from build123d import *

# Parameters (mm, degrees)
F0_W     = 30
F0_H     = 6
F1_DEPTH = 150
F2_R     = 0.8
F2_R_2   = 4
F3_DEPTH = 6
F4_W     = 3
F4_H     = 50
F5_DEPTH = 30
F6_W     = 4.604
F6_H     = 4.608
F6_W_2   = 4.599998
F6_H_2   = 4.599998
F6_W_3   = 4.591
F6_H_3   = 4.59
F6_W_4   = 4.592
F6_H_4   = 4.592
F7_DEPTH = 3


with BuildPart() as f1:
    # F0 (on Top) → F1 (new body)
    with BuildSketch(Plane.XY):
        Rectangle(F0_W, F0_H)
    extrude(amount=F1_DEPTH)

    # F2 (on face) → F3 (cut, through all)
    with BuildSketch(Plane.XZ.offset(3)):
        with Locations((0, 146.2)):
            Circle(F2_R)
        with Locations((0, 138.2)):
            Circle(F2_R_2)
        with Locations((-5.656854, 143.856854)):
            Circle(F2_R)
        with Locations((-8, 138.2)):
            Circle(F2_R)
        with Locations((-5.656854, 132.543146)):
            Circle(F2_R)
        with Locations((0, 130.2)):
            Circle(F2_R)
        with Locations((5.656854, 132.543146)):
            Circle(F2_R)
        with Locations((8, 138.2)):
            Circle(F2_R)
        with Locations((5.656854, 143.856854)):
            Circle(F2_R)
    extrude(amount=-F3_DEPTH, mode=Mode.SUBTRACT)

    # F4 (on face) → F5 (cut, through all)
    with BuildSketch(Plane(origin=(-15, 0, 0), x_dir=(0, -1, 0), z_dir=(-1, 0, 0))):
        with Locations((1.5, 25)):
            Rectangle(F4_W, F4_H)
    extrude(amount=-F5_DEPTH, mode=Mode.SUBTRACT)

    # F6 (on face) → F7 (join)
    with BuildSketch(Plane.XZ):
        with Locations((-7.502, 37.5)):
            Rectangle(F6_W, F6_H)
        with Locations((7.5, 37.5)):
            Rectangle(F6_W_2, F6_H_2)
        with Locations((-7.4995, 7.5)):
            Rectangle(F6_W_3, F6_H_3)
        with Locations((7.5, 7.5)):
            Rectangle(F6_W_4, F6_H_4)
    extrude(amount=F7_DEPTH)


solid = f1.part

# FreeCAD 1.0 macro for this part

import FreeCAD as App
import Part
import Sketcher

V = App.Vector
Q = App.Units.Quantity


def add_polygon(sketch, points):
    """Adds a closed chain of lines whose ends are joined by coincident constraints."""
    first, n = sketch.GeometryCount, len(points)
    for a, b in zip(points, points[1:] + points[:1]):
        sketch.addGeometry(Part.LineSegment(App.Vector(*a, 0), App.Vector(*b, 0)), False)
    for i in range(n):
        sketch.addConstraint(Sketcher.Constraint("Coincident", first + i, 2, first + (i + 1) % n, 1))

doc = App.newDocument("Part")
body = doc.addObject("PartDesign::Body", "Body")

# Sketch on XY plane
sketch1 = doc.addObject("Sketcher::SketchObject", "Sketch")
body.addObject(sketch1)
sketch1.AttachmentSupport = (doc.XY_Plane, [""])
sketch1.MapMode = "FlatFace"
add_polygon(sketch1, [(-15, 3), (-15, -3), (15, -3), (15, 3)])  # lines 0-3
sketch1.addConstraint([
    Sketcher.Constraint("Vertical", 0),
    Sketcher.Constraint("Horizontal", 1),
    Sketcher.Constraint("Vertical", 2),
    Sketcher.Constraint("Horizontal", 3),
    Sketcher.Constraint("Symmetric", 0, 2, 2, 2, -1, 1),
    Sketcher.Constraint("DistanceX", 1, 1, 1, 2, Q("30 mm")),
    Sketcher.Constraint("DistanceY", 0, 2, 0, 1, Q("6 mm")),
])
pad1 = doc.addObject("PartDesign::Pad", "Pad")
body.addObject(pad1)
pad1.Profile = sketch1
pad1.Length = 150

# Sketch on XZ plane
sketch2 = doc.addObject("Sketcher::SketchObject", "Sketch001")
body.addObject(sketch2)
sketch2.AttachmentSupport = (doc.XZ_Plane, [""])
sketch2.MapMode = "FlatFace"
sketch2.AttachmentOffset = App.Placement(V(0, 0, 3), App.Rotation())
sketch2.addGeometry([
    Part.Circle(V(0, 146.2, 0), V(0, 0, 1), 0.8),  # 0
    Part.Circle(V(0, 138.2, 0), V(0, 0, 1), 4),  # 1
    Part.Circle(V(-5.656854, 143.856854, 0), V(0, 0, 1), 0.8),  # 2
    Part.Circle(V(-8, 138.2, 0), V(0, 0, 1), 0.8),  # 3
    Part.Circle(V(-5.656854, 132.543146, 0), V(0, 0, 1), 0.8),  # 4
    Part.Circle(V(0, 130.2, 0), V(0, 0, 1), 0.8),  # 5
    Part.Circle(V(5.656854, 132.543146, 0), V(0, 0, 1), 0.8),  # 6
    Part.Circle(V(8, 138.2, 0), V(0, 0, 1), 0.8),  # 7
    Part.Circle(V(5.656854, 143.856854, 0), V(0, 0, 1), 0.8),  # 8
], False)
sketch2.addConstraint([
    Sketcher.Constraint("Equal", 0, 2),
    Sketcher.Constraint("Equal", 2, 3),
    Sketcher.Constraint("Equal", 3, 4),
    Sketcher.Constraint("Equal", 4, 5),
    Sketcher.Constraint("Equal", 5, 6),
    Sketcher.Constraint("Equal", 6, 7),
    Sketcher.Constraint("Equal", 7, 8),
    Sketcher.Constraint("Symmetric", 4, 3, 6, 3, -2),
    Sketcher.Constraint("Symmetric", 3, 3, 7, 3, -2),
    Sketcher.Constraint("Symmetric", 2, 3, 8, 3, -2),
    Sketcher.Constraint("PointOnObject", 0, 3, -2),
    Sketcher.Constraint("PointOnObject", 1, 3, -2),
    Sketcher.Constraint("PointOnObject", 5, 3, -2),
    Sketcher.Constraint("Horizontal", 1, 3, 3, 3),
    Sketcher.Constraint("Vertical", 2, 3, 4, 3),
    Sketcher.Constraint("Diameter", 1, Q("8 mm")),
    Sketcher.Constraint("Diameter", 0, Q("1.6 mm")),
    Sketcher.Constraint("DistanceX", 3, 3, -1, 1, Q("8 mm")),
    Sketcher.Constraint("DistanceY", 1, 3, 0, 3, Q("8 mm")),
    Sketcher.Constraint("DistanceY", 5, 3, 1, 3, Q("8 mm")),
    Sketcher.Constraint("DistanceY", -1, 1, 0, 3, Q("146.2 mm")),
    Sketcher.Constraint("DistanceX", 2, 3, -1, 1, Q("5.656854 mm")),
    Sketcher.Constraint("DistanceY", -1, 1, 2, 3, Q("143.856854 mm")),
    Sketcher.Constraint("DistanceY", -1, 1, 4, 3, Q("132.543146 mm")),
])
pocket1 = doc.addObject("PartDesign::Pocket", "Pocket")
body.addObject(pocket1)
pocket1.Profile = sketch2
pocket1.Type = "ThroughAll"

# Sketch on YZ plane
sketch3 = doc.addObject("Sketcher::SketchObject", "Sketch002")
body.addObject(sketch3)
sketch3.AttachmentSupport = (doc.YZ_Plane, [""])
sketch3.MapMode = "FlatFace"
sketch3.AttachmentOffset = App.Placement(V(0, 0, -15), App.Rotation())
add_polygon(sketch3, [(0, 50), (0, 0), (-3, 0), (-3, 50)])  # lines 0-3
sketch3.addConstraint([
    Sketcher.Constraint("Vertical", 0),
    Sketcher.Constraint("Horizontal", 1),
    Sketcher.Constraint("Vertical", 2),
    Sketcher.Constraint("Horizontal", 3),
    Sketcher.Constraint("Coincident", 0, 2, -1, 1),
    Sketcher.Constraint("DistanceX", 1, 2, 1, 1, Q("3 mm")),
    Sketcher.Constraint("DistanceY", 0, 2, 0, 1, Q("50 mm")),
])
pocket2 = doc.addObject("PartDesign::Pocket", "Pocket001")
body.addObject(pocket2)
pocket2.Profile = sketch3
pocket2.Type = "ThroughAll"
pocket2.Reversed = True

# Sketch on XZ plane
sketch4 = doc.addObject("Sketcher::SketchObject", "Sketch003")
body.addObject(sketch4)
sketch4.AttachmentSupport = (doc.XZ_Plane, [""])
sketch4.MapMode = "FlatFace"
add_polygon(sketch4, [(-9.804, 39.804), (-9.804, 35.196), (-5.2, 35.196), (-5.2, 39.804)])  # lines 0-3
add_polygon(sketch4, [(5.200001, 39.799999), (5.200001, 35.200001), (9.799999, 35.200001), (9.799999, 39.799999)])  # lines 4-7
add_polygon(sketch4, [(-9.795, 9.795), (-9.795, 5.205), (-5.204, 5.205), (-5.204, 9.795)])  # lines 8-11
add_polygon(sketch4, [(5.204, 9.796), (5.204, 5.204), (9.796, 5.204), (9.796, 9.796)])  # lines 12-15
sketch4.addConstraint([
    Sketcher.Constraint("Vertical", 0),
    Sketcher.Constraint("Horizontal", 1),
    Sketcher.Constraint("Vertical", 2),
    Sketcher.Constraint("Horizontal", 3),
    Sketcher.Constraint("Vertical", 4),
    Sketcher.Constraint("Horizontal", 5),
    Sketcher.Constraint("Vertical", 6),
    Sketcher.Constraint("Horizontal", 7),
    Sketcher.Constraint("Vertical", 8),
    Sketcher.Constraint("Horizontal", 9),
    Sketcher.Constraint("Vertical", 10),
    Sketcher.Constraint("Horizontal", 11),
    Sketcher.Constraint("Vertical", 12),
    Sketcher.Constraint("Horizontal", 13),
    Sketcher.Constraint("Vertical", 14),
    Sketcher.Constraint("Horizontal", 15),
    Sketcher.Constraint("Equal", 7, 4),
    Sketcher.Constraint("Equal", 15, 12),
    Sketcher.Constraint("DistanceX", 1, 2, 5, 2, Q("14.999999 mm")),
    Sketcher.Constraint("DistanceX", 9, 2, 13, 2, Q("15 mm")),
    Sketcher.Constraint("DistanceY", 8, 2, 8, 1, Q("4.59 mm")),
    Sketcher.Constraint("DistanceX", 1, 2, -1, 1, Q("5.2 mm")),
    Sketcher.Constraint("DistanceX", -1, 1, 4, 2, Q("5.200001 mm")),
    Sketcher.Constraint("DistanceY", -1, 1, 4, 2, Q("35.200001 mm")),
    Sketcher.Constraint("DistanceX", 0, 2, 9, 2, Q("4.6 mm")),
    Sketcher.Constraint("DistanceX", 1, 1, 1, 2, Q("4.604 mm")),
    Sketcher.Constraint("DistanceX", 9, 1, 9, 2, Q("4.591 mm")),
    Sketcher.Constraint("DistanceX", 13, 1, 13, 2, Q("4.592 mm")),
    Sketcher.Constraint("DistanceY", 0, 2, 0, 1, Q("4.608 mm")),
    Sketcher.Constraint("DistanceY", -1, 1, 0, 2, Q("35.196 mm")),
    Sketcher.Constraint("DistanceY", -1, 1, 8, 2, Q("5.205 mm")),
    Sketcher.Constraint("DistanceY", -1, 1, 12, 2, Q("5.204 mm")),
])
pad2 = doc.addObject("PartDesign::Pad", "Pad001")
body.addObject(pad2)
pad2.Profile = sketch4
pad2.Length = 3

doc.recompute()
